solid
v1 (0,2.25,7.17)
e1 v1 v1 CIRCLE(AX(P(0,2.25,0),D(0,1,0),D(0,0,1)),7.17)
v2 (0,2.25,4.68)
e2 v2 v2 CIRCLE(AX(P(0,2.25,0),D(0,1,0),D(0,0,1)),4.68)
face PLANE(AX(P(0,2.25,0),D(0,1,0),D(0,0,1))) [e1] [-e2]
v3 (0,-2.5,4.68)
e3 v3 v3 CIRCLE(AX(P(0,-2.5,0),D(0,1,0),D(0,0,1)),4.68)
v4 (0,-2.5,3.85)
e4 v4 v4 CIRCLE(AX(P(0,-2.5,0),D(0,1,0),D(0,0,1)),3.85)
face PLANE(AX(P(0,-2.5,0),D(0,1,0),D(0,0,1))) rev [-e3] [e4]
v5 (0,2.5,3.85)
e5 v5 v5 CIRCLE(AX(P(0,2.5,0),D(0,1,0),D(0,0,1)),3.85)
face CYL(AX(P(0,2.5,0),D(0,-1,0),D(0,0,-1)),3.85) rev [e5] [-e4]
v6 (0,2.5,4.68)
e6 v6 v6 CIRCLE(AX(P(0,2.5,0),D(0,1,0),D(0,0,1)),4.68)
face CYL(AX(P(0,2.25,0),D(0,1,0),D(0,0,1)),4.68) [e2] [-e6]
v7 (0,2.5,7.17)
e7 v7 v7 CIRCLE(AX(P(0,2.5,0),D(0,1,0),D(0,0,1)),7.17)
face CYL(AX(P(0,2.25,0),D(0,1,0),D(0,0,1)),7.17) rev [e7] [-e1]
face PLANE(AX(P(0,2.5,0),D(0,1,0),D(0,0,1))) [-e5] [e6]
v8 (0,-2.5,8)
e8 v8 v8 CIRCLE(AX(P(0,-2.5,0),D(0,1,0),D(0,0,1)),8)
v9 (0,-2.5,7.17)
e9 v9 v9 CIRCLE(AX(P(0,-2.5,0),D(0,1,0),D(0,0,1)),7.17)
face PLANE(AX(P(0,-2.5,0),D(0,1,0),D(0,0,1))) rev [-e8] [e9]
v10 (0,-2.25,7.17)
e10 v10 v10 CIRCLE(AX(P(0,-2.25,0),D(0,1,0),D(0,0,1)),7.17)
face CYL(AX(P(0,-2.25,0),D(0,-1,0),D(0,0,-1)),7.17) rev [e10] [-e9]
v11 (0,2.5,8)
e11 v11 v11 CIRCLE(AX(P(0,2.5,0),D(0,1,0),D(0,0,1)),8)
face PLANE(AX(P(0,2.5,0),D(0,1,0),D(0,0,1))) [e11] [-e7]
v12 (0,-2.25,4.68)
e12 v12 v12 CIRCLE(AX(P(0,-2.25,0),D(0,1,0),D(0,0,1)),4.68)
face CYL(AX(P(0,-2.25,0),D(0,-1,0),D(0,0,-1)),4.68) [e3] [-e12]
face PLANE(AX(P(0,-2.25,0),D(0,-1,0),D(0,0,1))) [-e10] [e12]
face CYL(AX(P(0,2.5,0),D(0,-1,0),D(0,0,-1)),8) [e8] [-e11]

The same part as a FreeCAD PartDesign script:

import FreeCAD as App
import Part
import Sketcher
Q = App.Units.Quantity

doc = App.newDocument("Part")
params = doc.addObject("Spreadsheet::Sheet", "Params")
for row, (alias, value) in enumerate([
    ("sketch1_diameter", "16 mm"),
    ("sketch1_diameter2", "7.7 mm"),
    ("pad1_length", "5 mm"),
    ("sketch2_diameter", "14.34 mm"),
    ("sketch2_diameter2", "9.36 mm"),
    ("pocket1_length", "0.25 mm"),
], start=1):
    params.set(f"A{row}", alias)
    params.set(f"B{row}", "=" + value)
    params.setAlias(f"B{row}", alias)

body = doc.addObject("PartDesign::Body", "Body")

# Sketch on XZ plane
sketch1 = body.newObject("Sketcher::SketchObject", "Sketch")
sketch1.AttachmentSupport = (doc.getObject("XZ_Plane"), [""])
sketch1.MapMode = "FlatFace"
sketch1.addGeometry([
    Part.Circle(App.Vector(0, 0, 0), App.Vector(0, 0, 1), 8),
    Part.Circle(App.Vector(0, 0, 0), App.Vector(0, 0, 1), 3.9),
], False)
sketch1.addConstraint([
    Sketcher.Constraint("Coincident", 0, 3, -1, 1),
    Sketcher.Constraint("Coincident", 1, 3, -1, 1),
    Sketcher.Constraint("Diameter", 0, Q("16 mm")),
    Sketcher.Constraint("Diameter", 1, Q("7.7 mm")),
])
sketch1.setExpression("Constraints[2]", "Params.sketch1_diameter")
sketch1.setExpression("Constraints[3]", "Params.sketch1_diameter2")
pad1 = body.newObject("PartDesign::Pad", "Pad")
pad1.Profile = sketch1
pad1.setExpression("Length", "Params.pad1_length")
pad1.Midplane = True

# Sketch on XZ plane
sketch2 = body.newObject("Sketcher::SketchObject", "Sketch001")
sketch2.AttachmentSupport = (doc.getObject("XZ_Plane"), [""])
sketch2.MapMode = "FlatFace"
sketch2.AttachmentOffset = App.Placement(App.Vector(0, 0, -2.5), App.Rotation())
sketch2.addGeometry([
    Part.Circle(App.Vector(0, 0, 0), App.Vector(0, 0, 1), 7.2),
    Part.Circle(App.Vector(0, 0, 0), App.Vector(0, 0, 1), 4.7),
], False)
sketch2.addConstraint([
    Sketcher.Constraint("Coincident", 0, 3, -1, 1),
    Sketcher.Constraint("Coincident", 1, 3, -1, 1),
    Sketcher.Constraint("Diameter", 0, Q("14.34 mm")),
    Sketcher.Constraint("Diameter", 1, Q("9.36 mm")),
])
sketch2.setExpression("Constraints[2]", "Params.sketch2_diameter")
sketch2.setExpression("Constraints[3]", "Params.sketch2_diameter2")
pocket1 = body.newObject("PartDesign::Pocket", "Pocket")
pocket1.Profile = sketch2
pocket1.setExpression("Length", "Params.pocket1_length")
pocket1.Reversed = True
doc.recompute()

mirrored = body.newObject("PartDesign::Mirrored", "Mirrored")
mirrored.Originals = [pocket1]
mirrored.MirrorPlane = (doc.getObject("XZ_Plane"), [""])
body.Tip = mirrored

doc.recompute()
